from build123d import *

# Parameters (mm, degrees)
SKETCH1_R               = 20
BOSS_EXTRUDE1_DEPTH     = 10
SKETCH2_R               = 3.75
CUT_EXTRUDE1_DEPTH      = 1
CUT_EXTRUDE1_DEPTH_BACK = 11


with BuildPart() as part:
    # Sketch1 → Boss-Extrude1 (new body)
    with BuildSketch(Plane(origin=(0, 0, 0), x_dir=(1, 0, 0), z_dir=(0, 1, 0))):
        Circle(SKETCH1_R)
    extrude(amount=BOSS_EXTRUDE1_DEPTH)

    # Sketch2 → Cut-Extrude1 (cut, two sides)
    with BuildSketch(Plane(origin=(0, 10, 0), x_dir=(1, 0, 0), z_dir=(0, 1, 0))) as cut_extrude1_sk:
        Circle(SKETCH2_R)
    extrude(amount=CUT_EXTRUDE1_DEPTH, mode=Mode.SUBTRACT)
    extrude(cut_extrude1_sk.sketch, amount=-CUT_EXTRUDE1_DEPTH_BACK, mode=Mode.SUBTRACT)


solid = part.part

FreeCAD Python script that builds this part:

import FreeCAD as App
import Part
import Sketcher

V = App.Vector

doc = App.newDocument("Part")
body = doc.addObject("PartDesign::Body", "Body")

# Sketch on XZ plane
sketch1 = body.newObject("Sketcher::SketchObject", "Sketch")
sketch1.AttachmentSupport = (doc.getObject("XZ_Plane"), [""])
sketch1.MapMode = "FlatFace"
sketch1.addGeometry(Part.Circle(V(0, 0, 0), V(0, 0, 1), 20), False)
sketch1.addConstraint([
    Sketcher.Constraint("Coincident", 0, 3, -1, 1),
    Sketcher.Constraint("Diameter", 0, 40.0),
])
pad1 = body.newObject("PartDesign::Pad", "Pad")
pad1.Profile = sketch1
pad1.Length = 10
pad1.Reversed = True

# Sketch on XZ plane
sketch2 = body.newObject("Sketcher::SketchObject", "Sketch001")
sketch2.AttachmentSupport = (doc.getObject("XZ_Plane"), [""])
sketch2.MapMode = "FlatFace"
sketch2.AttachmentOffset = App.Placement(V(0, 0, -10), App.Rotation())
sketch2.addGeometry(Part.Circle(V(0, 0, 0), V(0, 0, 1), 3.8), False)
sketch2.addConstraint([
    Sketcher.Constraint("Coincident", 0, 3, -1, 1),
    Sketcher.Constraint("Diameter", 0, 7.5),
])
pocket1 = body.newObject("PartDesign::Pocket", "Pocket")
pocket1.Profile = sketch2
pocket1.Type = "ThroughAll"
pocket1.Midplane = True

doc.recompute()
